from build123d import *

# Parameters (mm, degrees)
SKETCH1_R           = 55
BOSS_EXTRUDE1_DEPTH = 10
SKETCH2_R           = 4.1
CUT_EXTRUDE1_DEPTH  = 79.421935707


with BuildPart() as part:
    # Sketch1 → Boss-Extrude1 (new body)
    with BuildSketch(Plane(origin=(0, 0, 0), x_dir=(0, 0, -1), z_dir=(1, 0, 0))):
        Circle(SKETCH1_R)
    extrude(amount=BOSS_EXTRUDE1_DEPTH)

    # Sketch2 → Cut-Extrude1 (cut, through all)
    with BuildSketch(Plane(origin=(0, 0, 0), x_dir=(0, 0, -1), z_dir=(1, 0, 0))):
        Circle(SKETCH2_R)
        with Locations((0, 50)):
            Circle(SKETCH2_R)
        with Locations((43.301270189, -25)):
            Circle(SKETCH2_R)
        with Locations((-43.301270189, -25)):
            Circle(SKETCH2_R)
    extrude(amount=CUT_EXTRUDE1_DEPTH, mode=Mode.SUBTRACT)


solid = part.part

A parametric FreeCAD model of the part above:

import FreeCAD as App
import Part
import Sketcher
from FreeCAD import Vector
Q = App.Units.Quantity

doc = App.newDocument("Part")
params = doc.addObject("Spreadsheet::Sheet", "Params")
for row, (alias, value) in enumerate([
    ("sketch1_diameter", "110 mm"),
    ("pad1_length", "10 mm"),
    ("sketch2_diameter", "8.2 mm"),
], start=1):
    params.set(f"A{row}", alias)
    params.set(f"B{row}", "=" + value)
    params.setAlias(f"B{row}", alias)

body = doc.addObject("PartDesign::Body", "Body")

sketch1 = body.newObject("Sketcher::SketchObject", "Sketch")
sketch1.AttachmentSupport = (doc.getObject("YZ_Plane"), [""])
sketch1.MapMode = "FlatFace"
sketch1.addGeometry(Part.Circle(Vector(0, 0, 0), Vector(0, 0, 1), 55), False)
sketch1.addConstraint(Sketcher.Constraint("Coincident", 0, 3, -1, 1))
sketch1.addConstraint(Sketcher.Constraint("Diameter", 0, Q("110 mm")))
sketch1.setExpression("Constraints[1]", "Params.sketch1_diameter")
pad1 = body.newObject("PartDesign::Pad", "Pad")
pad1.Profile = sketch1
pad1.setExpression("Length", "Params.pad1_length")

sketch2 = body.newObject("Sketcher::SketchObject", "Sketch001")
sketch2.AttachmentSupport = (doc.getObject("YZ_Plane"), [""])
sketch2.MapMode = "FlatFace"
sketch2.addGeometry(Part.Circle(Vector(0, 0, 0), Vector(0, 0, 1), 4.1), False)
sketch2.addGeometry(Part.Circle(Vector(50, 0, 0), Vector(0, 0, 1), 4.1), False)
sketch2.addGeometry(Part.Circle(Vector(-25, -43.30127, 0), Vector(0, 0, 1), 4.1), False)
sketch2.addGeometry(Part.Circle(Vector(-25, 43.30127, 0), Vector(0, 0, 1), 4.1), False)
sketch2.addConstraint(Sketcher.Constraint("Coincident", 0, 3, -1, 1))
sketch2.addConstraint(Sketcher.Constraint("Equal", 0, 1))
sketch2.addConstraint(Sketcher.Constraint("Equal", 1, 2))
sketch2.addConstraint(Sketcher.Constraint("Equal", 2, 3))
sketch2.addConstraint(Sketcher.Constraint("Symmetric", 2, 3, 3, 3, -1))
sketch2.addConstraint(Sketcher.Constraint("PointOnObject", 1, 3, -1))
sketch2.addConstraint(Sketcher.Constraint("Diameter", 0, Q("8.2 mm")))
sketch2.addConstraint(Sketcher.Constraint("DistanceX", -1, 1, 1, 3, Q("50 mm")))
sketch2.addConstraint(Sketcher.Constraint("DistanceX", 2, 3, -1, 1, Q("25 mm")))
sketch2.addConstraint(Sketcher.Constraint("DistanceY", 2, 3, -1, 1, Q("43.30127 mm")))
sketch2.setExpression("Constraints[6]", "Params.sketch2_diameter")
pocket1 = body.newObject("PartDesign::Pocket", "Pocket")
pocket1.Profile = sketch2
pocket1.Type = "ThroughAll"
pocket1.Reversed = True

doc.recompute()
